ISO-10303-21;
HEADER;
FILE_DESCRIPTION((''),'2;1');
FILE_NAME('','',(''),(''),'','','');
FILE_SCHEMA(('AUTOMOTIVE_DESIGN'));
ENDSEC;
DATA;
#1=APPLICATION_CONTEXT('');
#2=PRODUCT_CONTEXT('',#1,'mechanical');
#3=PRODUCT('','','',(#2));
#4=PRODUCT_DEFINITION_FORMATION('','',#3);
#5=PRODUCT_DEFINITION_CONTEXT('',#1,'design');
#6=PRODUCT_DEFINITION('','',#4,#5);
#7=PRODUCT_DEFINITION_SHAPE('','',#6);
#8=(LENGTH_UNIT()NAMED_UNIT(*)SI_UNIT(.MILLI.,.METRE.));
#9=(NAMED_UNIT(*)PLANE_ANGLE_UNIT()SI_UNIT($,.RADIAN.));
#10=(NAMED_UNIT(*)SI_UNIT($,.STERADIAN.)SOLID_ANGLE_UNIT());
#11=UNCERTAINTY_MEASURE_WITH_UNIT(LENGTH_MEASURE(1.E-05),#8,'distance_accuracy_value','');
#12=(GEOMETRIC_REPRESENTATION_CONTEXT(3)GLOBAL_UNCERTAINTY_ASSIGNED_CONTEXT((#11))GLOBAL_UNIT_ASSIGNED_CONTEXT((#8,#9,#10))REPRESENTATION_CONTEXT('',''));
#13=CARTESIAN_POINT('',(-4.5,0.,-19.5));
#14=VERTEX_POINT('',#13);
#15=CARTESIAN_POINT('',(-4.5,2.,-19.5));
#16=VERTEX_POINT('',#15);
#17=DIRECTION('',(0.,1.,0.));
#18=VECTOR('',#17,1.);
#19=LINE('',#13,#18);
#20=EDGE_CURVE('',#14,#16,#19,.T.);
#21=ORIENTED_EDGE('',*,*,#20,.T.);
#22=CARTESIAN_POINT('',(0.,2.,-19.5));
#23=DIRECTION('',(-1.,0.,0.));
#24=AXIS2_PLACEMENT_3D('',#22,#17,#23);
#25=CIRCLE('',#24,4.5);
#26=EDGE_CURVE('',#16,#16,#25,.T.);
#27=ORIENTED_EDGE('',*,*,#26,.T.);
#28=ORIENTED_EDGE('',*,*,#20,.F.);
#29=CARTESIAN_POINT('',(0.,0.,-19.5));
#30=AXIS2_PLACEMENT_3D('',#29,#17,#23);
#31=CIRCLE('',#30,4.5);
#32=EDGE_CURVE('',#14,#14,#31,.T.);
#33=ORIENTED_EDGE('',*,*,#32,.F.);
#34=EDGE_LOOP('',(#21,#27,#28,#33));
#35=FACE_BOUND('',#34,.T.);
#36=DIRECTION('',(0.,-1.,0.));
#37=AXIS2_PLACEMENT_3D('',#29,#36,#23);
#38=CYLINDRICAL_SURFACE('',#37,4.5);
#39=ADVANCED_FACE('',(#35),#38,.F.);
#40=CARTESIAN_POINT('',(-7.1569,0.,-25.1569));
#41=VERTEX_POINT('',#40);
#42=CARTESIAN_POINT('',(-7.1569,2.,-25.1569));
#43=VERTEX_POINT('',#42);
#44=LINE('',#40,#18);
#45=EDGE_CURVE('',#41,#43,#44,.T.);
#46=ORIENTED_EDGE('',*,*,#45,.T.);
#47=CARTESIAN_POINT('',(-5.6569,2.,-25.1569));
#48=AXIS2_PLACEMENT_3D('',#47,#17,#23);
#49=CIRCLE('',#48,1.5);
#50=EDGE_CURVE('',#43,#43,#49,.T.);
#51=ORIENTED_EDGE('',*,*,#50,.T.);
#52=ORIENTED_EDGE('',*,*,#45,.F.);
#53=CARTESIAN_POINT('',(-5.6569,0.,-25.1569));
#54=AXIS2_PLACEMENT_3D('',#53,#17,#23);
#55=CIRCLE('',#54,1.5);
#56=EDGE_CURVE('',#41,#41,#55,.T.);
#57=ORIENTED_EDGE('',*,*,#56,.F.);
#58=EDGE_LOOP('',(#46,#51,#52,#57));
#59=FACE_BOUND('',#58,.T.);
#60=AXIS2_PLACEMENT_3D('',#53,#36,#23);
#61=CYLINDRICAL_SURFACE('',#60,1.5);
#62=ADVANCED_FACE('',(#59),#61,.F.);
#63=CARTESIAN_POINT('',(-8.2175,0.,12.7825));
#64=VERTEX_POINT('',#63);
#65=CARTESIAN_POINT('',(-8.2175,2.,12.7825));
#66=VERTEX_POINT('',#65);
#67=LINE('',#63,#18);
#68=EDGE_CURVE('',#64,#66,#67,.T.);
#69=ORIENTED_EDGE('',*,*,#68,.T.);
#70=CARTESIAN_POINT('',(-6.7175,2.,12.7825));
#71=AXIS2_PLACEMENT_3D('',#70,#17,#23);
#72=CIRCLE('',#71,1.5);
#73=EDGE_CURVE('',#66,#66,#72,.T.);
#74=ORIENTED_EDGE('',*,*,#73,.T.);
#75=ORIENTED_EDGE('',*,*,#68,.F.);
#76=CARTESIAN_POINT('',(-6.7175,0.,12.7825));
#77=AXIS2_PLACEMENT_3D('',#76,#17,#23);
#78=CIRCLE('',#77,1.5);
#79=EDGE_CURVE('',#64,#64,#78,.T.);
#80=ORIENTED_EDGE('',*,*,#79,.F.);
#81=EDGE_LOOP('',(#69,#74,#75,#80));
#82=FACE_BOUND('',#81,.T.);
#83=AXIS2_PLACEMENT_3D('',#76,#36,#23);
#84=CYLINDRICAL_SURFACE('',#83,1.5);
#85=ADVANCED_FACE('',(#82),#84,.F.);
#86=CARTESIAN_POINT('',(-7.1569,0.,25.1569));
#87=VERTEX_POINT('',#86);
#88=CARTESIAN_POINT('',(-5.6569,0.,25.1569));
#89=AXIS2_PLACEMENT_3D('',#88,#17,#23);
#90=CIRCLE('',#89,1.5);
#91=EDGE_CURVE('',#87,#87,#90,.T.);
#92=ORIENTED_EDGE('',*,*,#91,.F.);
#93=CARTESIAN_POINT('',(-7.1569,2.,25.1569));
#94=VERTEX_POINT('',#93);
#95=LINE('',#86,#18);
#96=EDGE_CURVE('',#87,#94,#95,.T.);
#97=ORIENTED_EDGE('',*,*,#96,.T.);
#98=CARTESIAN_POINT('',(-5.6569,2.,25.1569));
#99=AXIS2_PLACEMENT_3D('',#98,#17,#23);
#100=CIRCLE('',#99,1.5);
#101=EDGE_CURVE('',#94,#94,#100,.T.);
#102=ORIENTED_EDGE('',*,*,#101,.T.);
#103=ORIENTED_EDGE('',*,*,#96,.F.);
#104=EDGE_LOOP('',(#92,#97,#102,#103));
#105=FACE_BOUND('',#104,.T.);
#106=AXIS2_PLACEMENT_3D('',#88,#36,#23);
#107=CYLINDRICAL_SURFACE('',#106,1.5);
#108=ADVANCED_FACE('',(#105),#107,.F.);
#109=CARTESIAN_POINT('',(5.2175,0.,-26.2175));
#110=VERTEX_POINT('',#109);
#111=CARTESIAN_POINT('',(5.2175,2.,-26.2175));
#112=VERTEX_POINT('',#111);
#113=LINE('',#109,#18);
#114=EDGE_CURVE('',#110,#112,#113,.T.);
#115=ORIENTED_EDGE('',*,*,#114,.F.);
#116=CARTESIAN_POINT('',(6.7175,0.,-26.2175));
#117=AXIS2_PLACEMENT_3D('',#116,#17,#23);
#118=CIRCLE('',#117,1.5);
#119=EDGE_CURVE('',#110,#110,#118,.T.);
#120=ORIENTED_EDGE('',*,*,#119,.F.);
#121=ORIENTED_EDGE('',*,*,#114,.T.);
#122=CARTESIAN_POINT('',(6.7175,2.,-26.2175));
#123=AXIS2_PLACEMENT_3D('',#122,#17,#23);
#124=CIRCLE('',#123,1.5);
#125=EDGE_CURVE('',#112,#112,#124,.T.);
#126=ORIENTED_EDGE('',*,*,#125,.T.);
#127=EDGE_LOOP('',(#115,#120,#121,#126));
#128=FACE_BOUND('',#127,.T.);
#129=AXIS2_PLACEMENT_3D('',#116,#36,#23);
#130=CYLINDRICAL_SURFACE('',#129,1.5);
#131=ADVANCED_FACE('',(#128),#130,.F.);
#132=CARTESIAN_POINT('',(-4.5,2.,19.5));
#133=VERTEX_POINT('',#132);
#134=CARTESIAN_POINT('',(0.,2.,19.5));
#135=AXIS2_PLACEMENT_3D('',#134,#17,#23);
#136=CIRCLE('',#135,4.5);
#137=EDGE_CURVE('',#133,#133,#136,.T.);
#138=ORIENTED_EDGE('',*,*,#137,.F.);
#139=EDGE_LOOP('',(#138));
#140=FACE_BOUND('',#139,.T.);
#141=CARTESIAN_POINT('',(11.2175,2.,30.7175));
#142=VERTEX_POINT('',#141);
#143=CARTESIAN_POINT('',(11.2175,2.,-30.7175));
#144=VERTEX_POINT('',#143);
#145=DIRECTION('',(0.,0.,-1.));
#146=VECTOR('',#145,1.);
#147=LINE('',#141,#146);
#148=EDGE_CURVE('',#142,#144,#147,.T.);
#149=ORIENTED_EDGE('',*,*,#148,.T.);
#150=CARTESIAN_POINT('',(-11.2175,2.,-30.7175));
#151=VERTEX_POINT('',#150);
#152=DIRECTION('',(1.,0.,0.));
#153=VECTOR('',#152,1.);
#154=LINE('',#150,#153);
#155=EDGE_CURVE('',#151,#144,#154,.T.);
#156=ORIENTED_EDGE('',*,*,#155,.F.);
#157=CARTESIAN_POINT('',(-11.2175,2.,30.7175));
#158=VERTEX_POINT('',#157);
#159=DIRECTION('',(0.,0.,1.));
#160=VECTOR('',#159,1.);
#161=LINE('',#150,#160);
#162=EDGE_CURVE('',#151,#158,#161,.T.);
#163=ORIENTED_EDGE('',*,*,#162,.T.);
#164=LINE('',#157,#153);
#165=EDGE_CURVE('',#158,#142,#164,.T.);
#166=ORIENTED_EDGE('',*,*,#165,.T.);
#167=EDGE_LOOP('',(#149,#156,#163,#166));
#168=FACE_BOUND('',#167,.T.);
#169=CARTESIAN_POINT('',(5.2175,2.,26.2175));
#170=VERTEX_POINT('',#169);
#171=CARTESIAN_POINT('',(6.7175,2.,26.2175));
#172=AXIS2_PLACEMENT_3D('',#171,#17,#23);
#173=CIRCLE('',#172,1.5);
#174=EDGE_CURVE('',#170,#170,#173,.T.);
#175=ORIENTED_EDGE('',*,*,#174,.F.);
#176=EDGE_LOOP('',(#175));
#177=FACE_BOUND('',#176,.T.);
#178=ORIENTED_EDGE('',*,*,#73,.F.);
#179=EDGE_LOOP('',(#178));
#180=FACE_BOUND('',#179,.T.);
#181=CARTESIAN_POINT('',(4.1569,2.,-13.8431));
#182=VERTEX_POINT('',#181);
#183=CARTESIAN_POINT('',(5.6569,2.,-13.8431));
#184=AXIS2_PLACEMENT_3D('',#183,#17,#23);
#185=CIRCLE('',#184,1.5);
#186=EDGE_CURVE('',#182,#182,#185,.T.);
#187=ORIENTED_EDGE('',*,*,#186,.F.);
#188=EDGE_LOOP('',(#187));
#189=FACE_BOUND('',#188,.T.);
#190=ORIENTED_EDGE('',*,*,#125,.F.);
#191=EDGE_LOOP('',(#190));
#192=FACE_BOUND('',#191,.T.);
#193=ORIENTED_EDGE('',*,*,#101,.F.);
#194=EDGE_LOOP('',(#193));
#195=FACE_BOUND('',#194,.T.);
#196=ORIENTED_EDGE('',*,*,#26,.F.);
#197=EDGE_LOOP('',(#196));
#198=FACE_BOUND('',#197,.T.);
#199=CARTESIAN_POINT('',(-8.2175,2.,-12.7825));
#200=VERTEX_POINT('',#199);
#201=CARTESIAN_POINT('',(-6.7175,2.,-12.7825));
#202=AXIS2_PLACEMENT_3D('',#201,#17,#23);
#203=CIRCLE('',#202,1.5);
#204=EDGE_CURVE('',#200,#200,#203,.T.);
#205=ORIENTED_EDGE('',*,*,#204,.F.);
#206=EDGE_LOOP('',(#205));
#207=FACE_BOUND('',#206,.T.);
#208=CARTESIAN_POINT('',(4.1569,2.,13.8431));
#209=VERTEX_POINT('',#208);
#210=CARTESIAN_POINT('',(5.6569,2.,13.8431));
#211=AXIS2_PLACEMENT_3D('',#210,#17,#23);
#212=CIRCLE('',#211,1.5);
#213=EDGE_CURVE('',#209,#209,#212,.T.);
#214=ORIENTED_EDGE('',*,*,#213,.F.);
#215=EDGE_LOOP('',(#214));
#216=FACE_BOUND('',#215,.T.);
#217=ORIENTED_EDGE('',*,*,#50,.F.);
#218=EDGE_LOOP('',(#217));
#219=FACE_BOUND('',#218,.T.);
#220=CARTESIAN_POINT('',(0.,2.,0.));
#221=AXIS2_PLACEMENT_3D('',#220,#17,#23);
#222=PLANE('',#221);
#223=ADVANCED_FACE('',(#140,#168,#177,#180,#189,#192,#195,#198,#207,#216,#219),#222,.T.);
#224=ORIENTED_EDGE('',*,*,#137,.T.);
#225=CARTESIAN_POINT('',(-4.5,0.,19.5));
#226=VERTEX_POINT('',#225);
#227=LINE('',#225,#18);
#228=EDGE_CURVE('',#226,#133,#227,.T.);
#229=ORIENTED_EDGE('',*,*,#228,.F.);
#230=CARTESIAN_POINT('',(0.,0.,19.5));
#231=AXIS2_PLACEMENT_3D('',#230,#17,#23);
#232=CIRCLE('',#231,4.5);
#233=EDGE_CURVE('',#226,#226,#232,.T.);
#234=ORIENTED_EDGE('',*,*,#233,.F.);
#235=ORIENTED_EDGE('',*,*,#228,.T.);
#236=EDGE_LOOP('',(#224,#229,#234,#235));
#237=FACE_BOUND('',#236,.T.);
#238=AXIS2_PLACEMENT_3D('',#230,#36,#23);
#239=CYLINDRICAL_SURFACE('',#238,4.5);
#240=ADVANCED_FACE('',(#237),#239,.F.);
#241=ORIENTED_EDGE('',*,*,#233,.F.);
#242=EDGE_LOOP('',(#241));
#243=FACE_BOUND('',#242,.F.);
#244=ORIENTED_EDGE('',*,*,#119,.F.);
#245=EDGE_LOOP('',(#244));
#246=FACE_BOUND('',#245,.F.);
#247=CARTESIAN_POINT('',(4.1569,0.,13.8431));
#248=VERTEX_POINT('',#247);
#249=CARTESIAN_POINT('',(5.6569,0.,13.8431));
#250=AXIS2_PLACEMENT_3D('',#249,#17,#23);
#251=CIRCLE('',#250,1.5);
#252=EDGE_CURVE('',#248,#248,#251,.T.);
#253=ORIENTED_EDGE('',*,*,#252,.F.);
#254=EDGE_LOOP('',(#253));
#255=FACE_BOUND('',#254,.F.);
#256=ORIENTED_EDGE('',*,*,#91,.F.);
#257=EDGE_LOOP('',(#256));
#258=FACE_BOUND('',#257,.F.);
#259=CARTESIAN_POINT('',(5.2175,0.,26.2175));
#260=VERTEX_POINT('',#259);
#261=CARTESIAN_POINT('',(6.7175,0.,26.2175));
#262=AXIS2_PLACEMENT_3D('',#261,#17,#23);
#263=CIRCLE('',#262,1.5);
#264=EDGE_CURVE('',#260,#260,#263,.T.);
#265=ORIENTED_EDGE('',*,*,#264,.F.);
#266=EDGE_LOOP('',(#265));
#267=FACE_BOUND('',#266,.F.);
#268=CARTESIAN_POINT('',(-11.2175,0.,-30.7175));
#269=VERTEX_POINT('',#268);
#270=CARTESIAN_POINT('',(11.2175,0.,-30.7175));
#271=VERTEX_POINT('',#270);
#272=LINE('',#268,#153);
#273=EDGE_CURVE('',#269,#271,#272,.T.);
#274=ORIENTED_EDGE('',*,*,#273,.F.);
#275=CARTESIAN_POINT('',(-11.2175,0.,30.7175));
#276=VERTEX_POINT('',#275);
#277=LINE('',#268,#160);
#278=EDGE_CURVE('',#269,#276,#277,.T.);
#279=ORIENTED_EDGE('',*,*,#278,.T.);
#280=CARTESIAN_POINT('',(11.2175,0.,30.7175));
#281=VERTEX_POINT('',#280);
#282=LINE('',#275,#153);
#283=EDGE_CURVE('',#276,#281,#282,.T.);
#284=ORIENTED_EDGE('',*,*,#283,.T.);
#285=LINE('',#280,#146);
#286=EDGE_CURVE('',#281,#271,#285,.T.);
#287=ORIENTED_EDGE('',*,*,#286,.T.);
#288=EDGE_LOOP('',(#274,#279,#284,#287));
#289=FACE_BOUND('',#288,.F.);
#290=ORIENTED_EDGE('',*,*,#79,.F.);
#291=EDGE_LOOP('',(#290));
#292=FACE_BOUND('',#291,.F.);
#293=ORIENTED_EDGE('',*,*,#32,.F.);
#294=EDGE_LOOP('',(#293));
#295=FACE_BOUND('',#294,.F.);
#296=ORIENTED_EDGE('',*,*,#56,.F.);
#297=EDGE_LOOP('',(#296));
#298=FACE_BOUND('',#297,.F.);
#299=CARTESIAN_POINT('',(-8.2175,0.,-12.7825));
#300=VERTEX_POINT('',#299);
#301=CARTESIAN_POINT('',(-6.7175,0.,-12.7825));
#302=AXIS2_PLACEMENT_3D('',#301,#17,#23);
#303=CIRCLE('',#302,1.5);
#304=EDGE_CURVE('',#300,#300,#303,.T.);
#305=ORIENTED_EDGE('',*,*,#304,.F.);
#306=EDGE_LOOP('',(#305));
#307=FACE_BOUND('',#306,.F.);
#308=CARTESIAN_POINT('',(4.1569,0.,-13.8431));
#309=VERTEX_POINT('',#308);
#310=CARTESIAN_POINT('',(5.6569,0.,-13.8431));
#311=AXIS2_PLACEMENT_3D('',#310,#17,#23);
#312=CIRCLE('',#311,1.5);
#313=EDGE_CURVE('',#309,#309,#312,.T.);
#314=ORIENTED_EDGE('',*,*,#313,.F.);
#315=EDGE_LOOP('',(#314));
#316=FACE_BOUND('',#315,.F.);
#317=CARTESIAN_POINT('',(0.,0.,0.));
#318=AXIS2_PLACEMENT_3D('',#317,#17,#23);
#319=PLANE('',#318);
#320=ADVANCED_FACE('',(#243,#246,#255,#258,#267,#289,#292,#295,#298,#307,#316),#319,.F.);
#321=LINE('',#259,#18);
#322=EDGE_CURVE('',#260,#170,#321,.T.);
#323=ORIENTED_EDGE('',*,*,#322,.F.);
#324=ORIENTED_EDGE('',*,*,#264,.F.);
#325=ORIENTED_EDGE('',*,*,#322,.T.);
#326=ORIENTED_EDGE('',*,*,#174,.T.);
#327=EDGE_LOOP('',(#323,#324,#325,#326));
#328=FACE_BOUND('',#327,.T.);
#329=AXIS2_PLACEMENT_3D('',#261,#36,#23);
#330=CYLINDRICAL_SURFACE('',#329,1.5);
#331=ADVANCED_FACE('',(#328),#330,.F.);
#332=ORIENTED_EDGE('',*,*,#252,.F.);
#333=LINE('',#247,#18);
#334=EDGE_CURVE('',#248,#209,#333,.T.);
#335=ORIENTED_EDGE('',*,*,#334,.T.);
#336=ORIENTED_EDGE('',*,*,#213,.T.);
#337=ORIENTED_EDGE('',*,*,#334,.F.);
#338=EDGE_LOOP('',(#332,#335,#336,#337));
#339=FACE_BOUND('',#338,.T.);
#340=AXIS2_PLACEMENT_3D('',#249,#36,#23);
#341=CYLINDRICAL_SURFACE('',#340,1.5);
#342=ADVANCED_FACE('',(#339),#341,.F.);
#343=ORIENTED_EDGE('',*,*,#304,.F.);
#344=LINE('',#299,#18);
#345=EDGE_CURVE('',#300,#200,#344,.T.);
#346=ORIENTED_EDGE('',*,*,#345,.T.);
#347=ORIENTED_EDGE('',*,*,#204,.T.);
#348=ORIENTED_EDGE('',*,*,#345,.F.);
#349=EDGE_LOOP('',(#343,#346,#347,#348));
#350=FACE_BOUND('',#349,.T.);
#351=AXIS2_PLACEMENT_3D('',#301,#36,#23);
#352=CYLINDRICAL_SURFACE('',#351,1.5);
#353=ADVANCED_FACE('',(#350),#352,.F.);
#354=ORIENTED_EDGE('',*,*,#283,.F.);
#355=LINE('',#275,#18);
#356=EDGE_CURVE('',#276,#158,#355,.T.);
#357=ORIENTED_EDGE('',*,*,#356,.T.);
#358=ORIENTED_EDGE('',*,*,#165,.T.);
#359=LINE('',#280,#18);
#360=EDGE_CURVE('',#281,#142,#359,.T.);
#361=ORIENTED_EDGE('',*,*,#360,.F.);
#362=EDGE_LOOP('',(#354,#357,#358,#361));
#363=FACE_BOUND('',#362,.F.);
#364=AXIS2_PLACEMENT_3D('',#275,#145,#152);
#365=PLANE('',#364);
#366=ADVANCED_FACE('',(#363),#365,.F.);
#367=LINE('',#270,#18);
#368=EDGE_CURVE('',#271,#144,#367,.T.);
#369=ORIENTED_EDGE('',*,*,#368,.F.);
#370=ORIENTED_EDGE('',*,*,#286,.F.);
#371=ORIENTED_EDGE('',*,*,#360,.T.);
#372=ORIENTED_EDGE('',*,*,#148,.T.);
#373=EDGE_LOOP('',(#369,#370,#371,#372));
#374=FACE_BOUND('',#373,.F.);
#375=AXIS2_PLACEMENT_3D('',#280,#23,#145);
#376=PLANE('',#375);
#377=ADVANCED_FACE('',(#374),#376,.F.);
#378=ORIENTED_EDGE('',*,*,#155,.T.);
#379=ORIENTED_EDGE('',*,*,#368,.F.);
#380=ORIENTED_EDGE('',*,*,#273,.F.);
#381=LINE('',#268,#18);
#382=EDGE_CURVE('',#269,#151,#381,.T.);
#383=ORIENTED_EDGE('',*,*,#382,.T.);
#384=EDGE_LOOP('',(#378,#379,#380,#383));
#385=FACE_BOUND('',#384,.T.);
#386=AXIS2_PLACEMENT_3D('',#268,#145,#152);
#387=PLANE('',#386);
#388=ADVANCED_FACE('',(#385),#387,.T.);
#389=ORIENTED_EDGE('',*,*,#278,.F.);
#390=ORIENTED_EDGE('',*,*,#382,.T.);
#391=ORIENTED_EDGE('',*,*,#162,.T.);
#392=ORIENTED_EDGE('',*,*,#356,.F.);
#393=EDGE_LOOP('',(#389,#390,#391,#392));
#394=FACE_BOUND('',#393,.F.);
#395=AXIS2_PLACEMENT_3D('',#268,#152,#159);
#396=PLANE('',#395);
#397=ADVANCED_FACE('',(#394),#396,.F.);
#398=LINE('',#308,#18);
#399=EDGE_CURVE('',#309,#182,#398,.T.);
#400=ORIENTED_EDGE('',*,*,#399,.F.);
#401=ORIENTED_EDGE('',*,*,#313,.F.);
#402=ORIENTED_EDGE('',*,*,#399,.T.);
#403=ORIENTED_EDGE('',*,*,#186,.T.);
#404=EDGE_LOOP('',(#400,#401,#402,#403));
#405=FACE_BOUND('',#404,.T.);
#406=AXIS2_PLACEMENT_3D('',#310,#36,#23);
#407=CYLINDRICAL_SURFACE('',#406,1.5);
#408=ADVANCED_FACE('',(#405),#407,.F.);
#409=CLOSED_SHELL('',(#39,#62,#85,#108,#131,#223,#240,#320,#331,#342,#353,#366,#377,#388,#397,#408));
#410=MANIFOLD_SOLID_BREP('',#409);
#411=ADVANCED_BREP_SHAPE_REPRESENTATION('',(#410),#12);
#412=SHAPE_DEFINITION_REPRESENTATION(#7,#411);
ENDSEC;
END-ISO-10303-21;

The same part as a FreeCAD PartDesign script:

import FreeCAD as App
import Part
import Sketcher

V = App.Vector


def add_polygon(sketch, points):
    """Adds a closed chain of lines whose ends are joined by coincident constraints."""
    first, n = sketch.GeometryCount, len(points)
    for a, b in zip(points, points[1:] + points[:1]):
        sketch.addGeometry(Part.LineSegment(App.Vector(*a, 0), App.Vector(*b, 0)), False)
    for i in range(n):
        sketch.addConstraint(Sketcher.Constraint("Coincident", first + i, 2, first + (i + 1) % n, 1))

doc = App.newDocument("Part")
params = doc.addObject("Spreadsheet::Sheet", "Params")
for row, (alias, value) in enumerate([
    ("sketch1_diameter", "3 mm"),
    ("sketch1_diameter2", "9 mm"),
    ("pad1_length", "2 mm"),
], start=1):
    params.set(f"A{row}", alias)
    params.set(f"B{row}", "=" + value)
    params.setAlias(f"B{row}", alias)

body = doc.addObject("PartDesign::Body", "Body")

# Sketch on XZ plane
sketch1 = body.newObject("Sketcher::SketchObject", "Sketch")
sketch1.AttachmentSupport = (doc.getObject("XZ_Plane"), [""])
sketch1.MapMode = "FlatFace"
add_polygon(sketch1, [(-11.2175, -30.7175), (-11.2175, 30.7175), (11.2175, 30.7175), (11.2175, -30.7175)])  # lines 0-3
sketch1.addGeometry(Part.Circle(V(6.7175, -26.2175, 0), V(0, 0, 1), 1.5), False)  # 4
sketch1.addGeometry(Part.Circle(V(5.6569, -13.8431, 0), V(0, 0, 1), 1.5), False)  # 5
sketch1.addGeometry(Part.Circle(V(0, -19.5, 0), V(0, 0, 1), 4.5), False)  # 6
sketch1.addGeometry(Part.Circle(V(-5.6569, -25.1569, 0), V(0, 0, 1), 1.5), False)  # 7
sketch1.addGeometry(Part.Circle(V(-6.7175, -12.7825, 0), V(0, 0, 1), 1.5), False)  # 8
sketch1.addGeometry(Part.Circle(V(5.6569, 13.8431, 0), V(0, 0, 1), 1.5), False)  # 9
sketch1.addGeometry(Part.Circle(V(6.7175, 26.2175, 0), V(0, 0, 1), 1.5), False)  # 10
sketch1.addGeometry(Part.Circle(V(-6.7175, 12.7825, 0), V(0, 0, 1), 1.5), False)  # 11
sketch1.addGeometry(Part.Circle(V(0, 19.5, 0), V(0, 0, 1), 4.5), False)  # 12
sketch1.addGeometry(Part.Circle(V(-5.6569, 25.1569, 0), V(0, 0, 1), 1.5), False)  # 13
sketch1.addConstraint(Sketcher.Constraint("Vertical", 0))
sketch1.addConstraint(Sketcher.Constraint("Horizontal", 1))
sketch1.addConstraint(Sketcher.Constraint("Vertical", 2))
sketch1.addConstraint(Sketcher.Constraint("Horizontal", 3))
sketch1.addConstraint(Sketcher.Constraint("Equal", 4, 5))
sketch1.addConstraint(Sketcher.Constraint("Equal", 5, 7))
sketch1.addConstraint(Sketcher.Constraint("Equal", 7, 8))
sketch1.addConstraint(Sketcher.Constraint("Equal", 8, 9))
sketch1.addConstraint(Sketcher.Constraint("Equal", 9, 10))
sketch1.addConstraint(Sketcher.Constraint("Equal", 10, 11))
sketch1.addConstraint(Sketcher.Constraint("Equal", 6, 12))
sketch1.addConstraint(Sketcher.Constraint("Equal", 11, 13))
sketch1.addConstraint(Sketcher.Constraint("Symmetric", 6, 3, 12, 3, -1, 1))
sketch1.addConstraint(Sketcher.Constraint("Symmetric", 0, 2, 2, 2, -1, 1))
sketch1.addConstraint(Sketcher.Constraint("Symmetric", 5, 3, 9, 3, -1))
sketch1.addConstraint(Sketcher.Constraint("Symmetric", 4, 3, 10, 3, -1))
sketch1.addConstraint(Sketcher.Constraint("Symmetric", 8, 3, 11, 3, -1))
sketch1.addConstraint(Sketcher.Constraint("Symmetric", 7, 3, 13, 3, -1))
sketch1.addConstraint(Sketcher.Constraint("PointOnObject", 6, 3, -2))
sketch1.addConstraint(Sketcher.Constraint("Diameter", 4, 3.0))
sketch1.addConstraint(Sketcher.Constraint("Diameter", 6, 9.0))
sketch1.addConstraint(Sketcher.Constraint("DistanceY", 7, 3, 9, 3, 39.0))
sketch1.addConstraint(Sketcher.Constraint("DistanceY", 8, 3, 10, 3, 39.0))
sketch1.addConstraint(Sketcher.Constraint("DistanceY", 6, 3, -1, 1, 19.5))
sketch1.addConstraint(Sketcher.Constraint("DistanceY", 10, 3, 0, 2, 4.5))
sketch1.addConstraint(Sketcher.Constraint("DistanceX", 0, 2, 11, 3, 4.5))
sketch1.addConstraint(Sketcher.Constraint("DistanceX", 10, 3, 1, 2, 4.5))
sketch1.addConstraint(Sketcher.Constraint("DistanceX", -1, 1, 5, 3, 5.657))
sketch1.addConstraint(Sketcher.Constraint("DistanceX", 7, 3, -1, 1, 5.657))
sketch1.addConstraint(Sketcher.Constraint("DistanceY", 6, 3, 5, 3, 5.657))
sketch1.addConstraint(Sketcher.Constraint("DistanceX", -1, 1, 4, 3, 6.7175))
sketch1.addConstraint(Sketcher.Constraint("DistanceY", 4, 3, 6, 3, 6.7175))
sketch1.setExpression("Constraints[23]", "Params.sketch1_diameter")
sketch1.setExpression("Constraints[24]", "Params.sketch1_diameter2")
pad1 = body.newObject("PartDesign::Pad", "Pad")
pad1.Profile = sketch1
pad1.setExpression("Length", "Params.pad1_length")
pad1.Reversed = True

doc.recompute()
